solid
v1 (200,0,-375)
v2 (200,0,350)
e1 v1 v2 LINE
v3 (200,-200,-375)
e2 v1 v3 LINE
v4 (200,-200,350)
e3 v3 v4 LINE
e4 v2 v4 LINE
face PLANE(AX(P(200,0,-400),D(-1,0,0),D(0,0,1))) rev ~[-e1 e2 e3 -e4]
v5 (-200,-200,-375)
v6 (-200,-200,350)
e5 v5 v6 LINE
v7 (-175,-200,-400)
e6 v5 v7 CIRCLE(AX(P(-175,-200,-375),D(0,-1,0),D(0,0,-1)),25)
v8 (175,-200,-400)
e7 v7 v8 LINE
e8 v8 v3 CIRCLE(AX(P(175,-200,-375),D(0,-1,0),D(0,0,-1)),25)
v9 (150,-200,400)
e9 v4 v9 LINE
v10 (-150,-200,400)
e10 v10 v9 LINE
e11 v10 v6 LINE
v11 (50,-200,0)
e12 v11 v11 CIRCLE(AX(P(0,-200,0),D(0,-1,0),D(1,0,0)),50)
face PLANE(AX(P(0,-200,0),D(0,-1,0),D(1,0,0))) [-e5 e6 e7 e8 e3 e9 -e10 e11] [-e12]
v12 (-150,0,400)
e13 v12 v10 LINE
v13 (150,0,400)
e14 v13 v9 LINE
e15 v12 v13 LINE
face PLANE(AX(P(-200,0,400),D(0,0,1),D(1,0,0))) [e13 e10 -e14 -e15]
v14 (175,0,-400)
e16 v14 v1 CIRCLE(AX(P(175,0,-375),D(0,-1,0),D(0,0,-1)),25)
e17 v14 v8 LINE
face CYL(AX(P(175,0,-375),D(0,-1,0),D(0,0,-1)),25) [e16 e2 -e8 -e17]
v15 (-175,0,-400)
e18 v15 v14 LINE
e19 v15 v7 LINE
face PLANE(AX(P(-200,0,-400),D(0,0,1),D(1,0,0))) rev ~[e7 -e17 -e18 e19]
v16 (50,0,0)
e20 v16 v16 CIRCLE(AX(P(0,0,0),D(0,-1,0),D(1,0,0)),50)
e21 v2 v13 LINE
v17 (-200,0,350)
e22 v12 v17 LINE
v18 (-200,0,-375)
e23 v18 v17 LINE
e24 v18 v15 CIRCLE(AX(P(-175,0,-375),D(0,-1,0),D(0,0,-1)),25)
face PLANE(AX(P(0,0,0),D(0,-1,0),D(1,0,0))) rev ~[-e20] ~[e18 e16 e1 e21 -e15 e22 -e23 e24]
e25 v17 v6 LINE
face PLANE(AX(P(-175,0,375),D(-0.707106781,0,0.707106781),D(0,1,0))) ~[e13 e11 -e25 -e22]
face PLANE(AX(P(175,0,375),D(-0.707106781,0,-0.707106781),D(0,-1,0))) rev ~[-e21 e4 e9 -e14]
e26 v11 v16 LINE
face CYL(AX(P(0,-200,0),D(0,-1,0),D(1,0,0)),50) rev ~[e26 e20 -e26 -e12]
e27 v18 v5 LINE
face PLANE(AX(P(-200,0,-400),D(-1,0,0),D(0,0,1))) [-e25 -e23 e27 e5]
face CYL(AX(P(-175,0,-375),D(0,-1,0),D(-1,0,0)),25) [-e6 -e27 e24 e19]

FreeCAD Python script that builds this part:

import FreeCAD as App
import Part
import Sketcher

V = App.Vector
Q = App.Units.Quantity


def edges_at(feature, points):
    """Names of the edges that pass closest to the given points."""
    edges = feature.Shape.Edges
    near = lambda p: min(range(len(edges)), key=lambda i: edges[i].distToShape(Part.Vertex(*p))[0])
    return sorted({f"Edge{near(p) + 1}" for p in points})


def add_polygon(sketch, points):
    """Adds a closed chain of lines whose ends are joined by coincident constraints."""
    first, n = sketch.GeometryCount, len(points)
    for a, b in zip(points, points[1:] + points[:1]):
        sketch.addGeometry(Part.LineSegment(App.Vector(*a, 0), App.Vector(*b, 0)), False)
    for i in range(n):
        sketch.addConstraint(Sketcher.Constraint("Coincident", first + i, 2, first + (i + 1) % n, 1))

doc = App.newDocument("Part")
body = doc.addObject("PartDesign::Body", "Body")

# Sketch on XZ plane
sketch1 = body.newObject("Sketcher::SketchObject", "Sketch")
sketch1.AttachmentSupport = (doc.getObject("XZ_Plane"), [""])
sketch1.MapMode = "FlatFace"
add_polygon(sketch1, [(-200, 400), (-200, -400), (200, -400), (200, 400)])  # lines 0-3
sketch1.addConstraint(Sketcher.Constraint("Vertical", 0))
sketch1.addConstraint(Sketcher.Constraint("Horizontal", 1))
sketch1.addConstraint(Sketcher.Constraint("Vertical", 2))
sketch1.addConstraint(Sketcher.Constraint("Horizontal", 3))
sketch1.addConstraint(Sketcher.Constraint("Symmetric", 0, 2, 2, 2, -1, 1))
sketch1.addConstraint(Sketcher.Constraint("DistanceX", 1, 1, 1, 2, Q("400 mm")))
sketch1.addConstraint(Sketcher.Constraint("DistanceY", 0, 2, 0, 1, Q("800 mm")))
pad1 = body.newObject("PartDesign::Pad", "Pad")
pad1.Profile = sketch1
pad1.Length = 200
doc.recompute()

chamfer = body.newObject("PartDesign::Chamfer", "Chamfer")
chamfer.Base = (pad1, edges_at(pad1, [(200, -100, 400)]))
chamfer.Size = 50
doc.recompute()

chamfer2 = body.newObject("PartDesign::Chamfer", "Chamfer001")
chamfer2.Base = (chamfer, edges_at(chamfer, [(-200, -100, 400)]))
chamfer2.Size = 50
doc.recompute()

fillet = body.newObject("PartDesign::Fillet", "Fillet")
fillet.Base = (chamfer2, edges_at(chamfer2, [(-200, -100, -400)]))
fillet.Radius = 25
doc.recompute()

fillet2 = body.newObject("PartDesign::Fillet", "Fillet001")
fillet2.Base = (fillet, edges_at(fillet, [(200, -100, -400)]))
fillet2.Radius = 25

# Sketch on XZ plane
sketch2 = body.newObject("Sketcher::SketchObject", "Sketch001")
sketch2.AttachmentSupport = (doc.getObject("XZ_Plane"), [""])
sketch2.MapMode = "FlatFace"
sketch2.AttachmentOffset = App.Placement(V(0, 0, 200), App.Rotation())
sketch2.addGeometry(Part.Circle(V(0, 0, 0), V(0, 0, 1), 50), False)
sketch2.addConstraint(Sketcher.Constraint("Coincident", 0, 3, -1, 1))
sketch2.addConstraint(Sketcher.Constraint("Diameter", 0, Q("100 mm")))
pocket1 = body.newObject("PartDesign::Pocket", "Pocket")
pocket1.Profile = sketch2
pocket1.Length = 508

doc.recompute()
